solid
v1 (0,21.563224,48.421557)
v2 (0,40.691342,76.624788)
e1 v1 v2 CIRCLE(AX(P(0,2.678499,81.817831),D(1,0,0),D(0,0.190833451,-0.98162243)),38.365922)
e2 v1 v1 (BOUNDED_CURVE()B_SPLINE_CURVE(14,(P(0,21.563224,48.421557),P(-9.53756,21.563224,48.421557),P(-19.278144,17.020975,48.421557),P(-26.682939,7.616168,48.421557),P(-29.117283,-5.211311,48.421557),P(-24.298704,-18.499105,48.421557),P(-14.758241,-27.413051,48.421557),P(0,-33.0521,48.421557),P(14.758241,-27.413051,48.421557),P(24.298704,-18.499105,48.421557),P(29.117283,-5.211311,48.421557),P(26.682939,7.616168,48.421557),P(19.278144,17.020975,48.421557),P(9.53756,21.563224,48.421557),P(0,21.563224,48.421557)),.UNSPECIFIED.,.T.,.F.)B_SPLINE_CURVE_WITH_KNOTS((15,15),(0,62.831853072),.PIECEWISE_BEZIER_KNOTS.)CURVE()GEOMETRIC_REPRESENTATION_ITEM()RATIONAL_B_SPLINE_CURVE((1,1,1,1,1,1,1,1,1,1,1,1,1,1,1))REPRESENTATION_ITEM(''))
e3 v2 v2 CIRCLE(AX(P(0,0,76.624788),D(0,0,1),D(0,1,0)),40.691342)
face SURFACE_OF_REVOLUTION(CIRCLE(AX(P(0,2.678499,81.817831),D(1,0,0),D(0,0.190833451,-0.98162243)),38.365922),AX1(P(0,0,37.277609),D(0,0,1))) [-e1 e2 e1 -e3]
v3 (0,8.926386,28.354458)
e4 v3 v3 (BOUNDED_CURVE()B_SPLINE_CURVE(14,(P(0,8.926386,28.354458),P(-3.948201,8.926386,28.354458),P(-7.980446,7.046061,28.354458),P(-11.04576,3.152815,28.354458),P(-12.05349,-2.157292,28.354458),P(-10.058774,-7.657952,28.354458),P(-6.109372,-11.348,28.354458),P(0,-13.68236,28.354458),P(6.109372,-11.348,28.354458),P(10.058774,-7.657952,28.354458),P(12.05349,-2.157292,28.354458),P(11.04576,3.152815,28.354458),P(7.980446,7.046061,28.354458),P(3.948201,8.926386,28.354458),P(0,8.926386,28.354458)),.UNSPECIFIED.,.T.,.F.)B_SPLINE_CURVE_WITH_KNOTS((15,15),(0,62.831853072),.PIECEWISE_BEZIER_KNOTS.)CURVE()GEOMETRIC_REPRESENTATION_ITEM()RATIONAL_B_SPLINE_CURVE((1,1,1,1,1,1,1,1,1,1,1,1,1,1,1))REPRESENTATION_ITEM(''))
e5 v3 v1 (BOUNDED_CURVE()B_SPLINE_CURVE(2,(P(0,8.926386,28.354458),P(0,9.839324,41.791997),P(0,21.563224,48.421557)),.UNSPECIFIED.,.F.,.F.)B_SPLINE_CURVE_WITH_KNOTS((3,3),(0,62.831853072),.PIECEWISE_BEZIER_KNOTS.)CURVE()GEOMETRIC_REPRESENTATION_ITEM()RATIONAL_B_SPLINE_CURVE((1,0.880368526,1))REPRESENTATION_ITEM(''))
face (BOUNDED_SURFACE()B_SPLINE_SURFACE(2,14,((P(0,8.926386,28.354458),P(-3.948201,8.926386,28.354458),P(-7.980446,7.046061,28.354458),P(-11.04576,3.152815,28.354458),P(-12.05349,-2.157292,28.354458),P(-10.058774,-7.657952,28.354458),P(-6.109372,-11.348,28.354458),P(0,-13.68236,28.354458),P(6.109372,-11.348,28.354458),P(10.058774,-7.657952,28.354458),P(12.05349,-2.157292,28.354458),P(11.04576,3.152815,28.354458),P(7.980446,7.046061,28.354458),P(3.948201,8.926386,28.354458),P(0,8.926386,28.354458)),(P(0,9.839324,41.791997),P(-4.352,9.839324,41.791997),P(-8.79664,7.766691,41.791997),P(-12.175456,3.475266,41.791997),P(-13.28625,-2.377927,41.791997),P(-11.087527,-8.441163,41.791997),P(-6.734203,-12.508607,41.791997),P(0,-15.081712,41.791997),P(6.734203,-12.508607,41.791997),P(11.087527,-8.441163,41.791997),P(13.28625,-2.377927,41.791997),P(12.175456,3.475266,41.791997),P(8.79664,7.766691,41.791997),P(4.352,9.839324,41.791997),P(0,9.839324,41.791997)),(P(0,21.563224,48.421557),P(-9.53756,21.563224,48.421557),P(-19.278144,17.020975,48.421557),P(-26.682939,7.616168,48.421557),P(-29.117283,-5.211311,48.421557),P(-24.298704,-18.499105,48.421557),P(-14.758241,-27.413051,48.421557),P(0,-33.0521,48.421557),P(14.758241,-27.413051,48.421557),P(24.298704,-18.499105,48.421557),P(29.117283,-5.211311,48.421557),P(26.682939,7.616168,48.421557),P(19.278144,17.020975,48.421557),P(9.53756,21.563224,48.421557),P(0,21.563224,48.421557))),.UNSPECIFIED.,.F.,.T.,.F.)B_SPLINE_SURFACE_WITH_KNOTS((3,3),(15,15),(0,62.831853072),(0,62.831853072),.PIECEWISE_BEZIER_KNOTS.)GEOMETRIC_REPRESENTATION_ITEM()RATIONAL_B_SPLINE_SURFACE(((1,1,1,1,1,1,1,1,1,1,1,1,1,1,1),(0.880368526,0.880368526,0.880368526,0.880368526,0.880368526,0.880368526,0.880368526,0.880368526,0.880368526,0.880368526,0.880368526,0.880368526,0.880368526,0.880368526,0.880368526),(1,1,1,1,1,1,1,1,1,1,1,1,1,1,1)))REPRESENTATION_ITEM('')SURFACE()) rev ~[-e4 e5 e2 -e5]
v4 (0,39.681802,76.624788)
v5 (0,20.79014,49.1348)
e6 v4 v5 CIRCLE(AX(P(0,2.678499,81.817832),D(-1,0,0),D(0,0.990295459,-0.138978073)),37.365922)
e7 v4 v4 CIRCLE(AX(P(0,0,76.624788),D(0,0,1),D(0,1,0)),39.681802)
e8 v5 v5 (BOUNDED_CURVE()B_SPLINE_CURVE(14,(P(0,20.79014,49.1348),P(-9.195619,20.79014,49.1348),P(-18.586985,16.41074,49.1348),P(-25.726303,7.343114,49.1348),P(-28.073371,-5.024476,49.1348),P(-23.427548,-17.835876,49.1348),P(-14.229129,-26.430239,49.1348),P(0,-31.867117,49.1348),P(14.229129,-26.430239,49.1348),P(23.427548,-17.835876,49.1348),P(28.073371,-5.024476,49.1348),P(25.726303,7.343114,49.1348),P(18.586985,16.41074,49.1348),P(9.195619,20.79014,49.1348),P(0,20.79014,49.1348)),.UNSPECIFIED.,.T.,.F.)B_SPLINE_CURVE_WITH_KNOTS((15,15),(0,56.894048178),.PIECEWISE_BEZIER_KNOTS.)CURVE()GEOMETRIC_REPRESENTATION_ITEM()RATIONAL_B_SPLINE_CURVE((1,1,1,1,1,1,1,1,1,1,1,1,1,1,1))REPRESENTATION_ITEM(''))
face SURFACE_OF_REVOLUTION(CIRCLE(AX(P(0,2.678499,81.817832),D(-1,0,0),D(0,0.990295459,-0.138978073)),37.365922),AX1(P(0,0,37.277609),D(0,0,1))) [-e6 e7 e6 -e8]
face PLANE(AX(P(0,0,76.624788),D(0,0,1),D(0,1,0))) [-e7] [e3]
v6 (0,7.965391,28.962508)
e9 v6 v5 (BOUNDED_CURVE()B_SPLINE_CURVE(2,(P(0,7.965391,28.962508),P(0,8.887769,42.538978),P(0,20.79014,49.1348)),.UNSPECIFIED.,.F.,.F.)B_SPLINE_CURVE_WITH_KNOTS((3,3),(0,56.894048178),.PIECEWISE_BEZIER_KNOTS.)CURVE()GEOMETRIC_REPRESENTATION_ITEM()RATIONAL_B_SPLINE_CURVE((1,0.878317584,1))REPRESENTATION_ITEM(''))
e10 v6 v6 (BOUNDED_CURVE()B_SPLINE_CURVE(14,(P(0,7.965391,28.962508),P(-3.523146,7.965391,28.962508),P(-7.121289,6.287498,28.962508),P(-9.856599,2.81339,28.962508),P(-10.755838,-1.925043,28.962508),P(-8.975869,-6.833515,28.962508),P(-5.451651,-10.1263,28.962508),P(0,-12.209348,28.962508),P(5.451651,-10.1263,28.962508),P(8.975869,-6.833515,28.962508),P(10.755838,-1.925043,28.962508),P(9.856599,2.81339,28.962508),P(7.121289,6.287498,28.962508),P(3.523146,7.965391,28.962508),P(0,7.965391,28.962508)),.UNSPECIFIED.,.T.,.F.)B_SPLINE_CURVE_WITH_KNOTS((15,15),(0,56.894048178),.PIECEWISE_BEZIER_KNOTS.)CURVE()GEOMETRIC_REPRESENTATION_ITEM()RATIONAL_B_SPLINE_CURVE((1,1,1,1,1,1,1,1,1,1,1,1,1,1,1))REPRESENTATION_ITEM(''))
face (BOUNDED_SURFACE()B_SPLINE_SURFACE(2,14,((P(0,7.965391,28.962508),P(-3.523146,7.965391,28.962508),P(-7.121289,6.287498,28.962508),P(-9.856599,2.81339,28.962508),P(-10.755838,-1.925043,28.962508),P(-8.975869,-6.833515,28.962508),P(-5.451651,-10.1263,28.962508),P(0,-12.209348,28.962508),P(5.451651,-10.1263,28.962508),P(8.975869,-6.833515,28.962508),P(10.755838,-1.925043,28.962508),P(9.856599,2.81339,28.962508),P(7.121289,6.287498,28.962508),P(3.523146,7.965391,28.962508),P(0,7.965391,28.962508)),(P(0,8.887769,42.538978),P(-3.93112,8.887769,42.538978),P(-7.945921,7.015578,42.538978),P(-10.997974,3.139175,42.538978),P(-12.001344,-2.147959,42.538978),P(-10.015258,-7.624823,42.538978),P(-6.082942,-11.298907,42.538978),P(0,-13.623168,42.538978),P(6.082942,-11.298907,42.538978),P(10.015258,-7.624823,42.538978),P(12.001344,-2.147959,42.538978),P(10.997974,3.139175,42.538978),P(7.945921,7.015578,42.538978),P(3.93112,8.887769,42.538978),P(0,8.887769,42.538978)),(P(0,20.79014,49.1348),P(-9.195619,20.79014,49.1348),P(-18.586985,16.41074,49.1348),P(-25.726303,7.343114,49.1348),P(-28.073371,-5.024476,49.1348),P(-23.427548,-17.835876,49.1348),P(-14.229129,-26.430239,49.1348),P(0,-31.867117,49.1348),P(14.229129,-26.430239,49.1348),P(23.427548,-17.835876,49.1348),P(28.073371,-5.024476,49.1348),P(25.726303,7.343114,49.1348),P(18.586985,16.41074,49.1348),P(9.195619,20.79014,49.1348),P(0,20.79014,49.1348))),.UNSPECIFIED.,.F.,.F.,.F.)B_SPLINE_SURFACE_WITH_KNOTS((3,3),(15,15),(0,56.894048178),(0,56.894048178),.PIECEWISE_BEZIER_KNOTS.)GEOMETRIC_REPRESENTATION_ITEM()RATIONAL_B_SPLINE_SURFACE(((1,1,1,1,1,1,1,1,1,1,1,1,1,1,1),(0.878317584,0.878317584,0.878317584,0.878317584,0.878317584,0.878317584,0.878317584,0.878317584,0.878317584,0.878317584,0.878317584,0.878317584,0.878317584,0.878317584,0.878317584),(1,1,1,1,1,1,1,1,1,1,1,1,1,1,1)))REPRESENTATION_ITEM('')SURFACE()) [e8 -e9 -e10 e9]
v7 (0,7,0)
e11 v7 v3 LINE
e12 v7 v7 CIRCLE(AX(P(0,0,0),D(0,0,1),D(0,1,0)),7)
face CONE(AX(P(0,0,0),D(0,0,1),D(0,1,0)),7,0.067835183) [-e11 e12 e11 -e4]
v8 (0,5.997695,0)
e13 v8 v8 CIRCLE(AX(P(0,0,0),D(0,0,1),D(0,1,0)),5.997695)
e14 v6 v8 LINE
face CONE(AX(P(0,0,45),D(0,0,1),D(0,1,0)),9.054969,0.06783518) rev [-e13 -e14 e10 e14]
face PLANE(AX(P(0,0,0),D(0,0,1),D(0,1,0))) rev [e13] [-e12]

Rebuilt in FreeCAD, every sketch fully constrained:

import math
import FreeCAD as App
import Part
import Sketcher
from FreeCAD import Vector
Q = App.Units.Quantity


def edges_at(feature, points):
    """Names of the edges that pass closest to the given points."""
    edges = feature.Shape.Edges
    near = lambda p: min(range(len(edges)), key=lambda i: edges[i].distToShape(Part.Vertex(*p))[0])
    return sorted({f"Edge{near(p) + 1}" for p in points})

doc = App.newDocument("Part")
body = doc.addObject("PartDesign::Body", "Body")

sketch1 = doc.addObject("Sketcher::SketchObject", "Sketch")
body.addObject(sketch1)
sketch1.AttachmentSupport = (doc.YZ_Plane, [""])
sketch1.MapMode = "FlatFace"
sketch1.addGeometry([
    Part.LineSegment(Vector(9.1, 45, 0), Vector(6, 0, 0)),
    Part.LineSegment(Vector(6, 0, 0), Vector(7, 0, 0)),
    Part.LineSegment(Vector(7, 0, 0), Vector(10, 44.2, 0)),
    Part.ArcOfCircle(Part.Circle(Vector(2.7, 81.8, 0), Vector(0, 0, 1), 38.4), math.radians(-79), math.radians(-8)),
    Part.LineSegment(Vector(40.7, 76.6, 0), Vector(39.7, 76.6, 0)),
    Part.ArcOfCircle(Part.Circle(Vector(2.7, 81.8, 0), Vector(0, 0, 1), 37.4), math.radians(-80), math.radians(-8)),
], False)
sketch1.addConstraint([
    Sketcher.Constraint("Coincident", 0, 2, 1, 1),
    Sketcher.Constraint("Coincident", 1, 2, 2, 1),
    Sketcher.Constraint("Coincident", 2, 2, 3, 1),
    Sketcher.Constraint("Coincident", 3, 2, 4, 1),
    Sketcher.Constraint("Coincident", 4, 2, 5, 2),
    Sketcher.Constraint("Coincident", 5, 1, 0, 1),
    Sketcher.Constraint("Horizontal", 1),
    Sketcher.Constraint("Horizontal", 4),
    Sketcher.Constraint("Coincident", 5, 3, 3, 3),
    Sketcher.Constraint("PointOnObject", 0, 2, -1),
    Sketcher.Constraint("Parallel", 0, 2),
    Sketcher.Constraint("DistanceX", -1, 1, 1, 2, Q("7 mm")),
    Sketcher.Constraint("DistanceX", -1, 1, 2, 2, Q("10 mm")),
    Sketcher.Constraint("DistanceY", -1, 1, 5, 1, Q("45 mm")),
    Sketcher.Constraint("Radius", 3, Q("38.365922 mm")),
    Sketcher.Constraint("Radius", 5, Q("37.365922 mm")),
    Sketcher.Constraint("DistanceX", -1, 1, 3, 3, Q("2.678499 mm")),
    Sketcher.Constraint("DistanceX", -1, 1, 4, 2, Q("39.681802 mm")),
    Sketcher.Constraint("DistanceX", 1, 1, 1, 2, Q("1.002305 mm")),
])
revolution = doc.addObject("PartDesign::Revolution", "Revolution")
body.addObject(revolution)
revolution.Profile = sketch1
revolution.ReferenceAxis = (sketch1, ["V_Axis"])
revolution.Angle = 360
doc.recompute()

fillet = doc.addObject("PartDesign::Fillet", "Fillet")
body.addObject(fillet)
fillet.Base = (revolution, edges_at(revolution, [(0, -10, 44.157), (0, -9.055, 45)]))
fillet.Radius = 25

doc.recompute()
